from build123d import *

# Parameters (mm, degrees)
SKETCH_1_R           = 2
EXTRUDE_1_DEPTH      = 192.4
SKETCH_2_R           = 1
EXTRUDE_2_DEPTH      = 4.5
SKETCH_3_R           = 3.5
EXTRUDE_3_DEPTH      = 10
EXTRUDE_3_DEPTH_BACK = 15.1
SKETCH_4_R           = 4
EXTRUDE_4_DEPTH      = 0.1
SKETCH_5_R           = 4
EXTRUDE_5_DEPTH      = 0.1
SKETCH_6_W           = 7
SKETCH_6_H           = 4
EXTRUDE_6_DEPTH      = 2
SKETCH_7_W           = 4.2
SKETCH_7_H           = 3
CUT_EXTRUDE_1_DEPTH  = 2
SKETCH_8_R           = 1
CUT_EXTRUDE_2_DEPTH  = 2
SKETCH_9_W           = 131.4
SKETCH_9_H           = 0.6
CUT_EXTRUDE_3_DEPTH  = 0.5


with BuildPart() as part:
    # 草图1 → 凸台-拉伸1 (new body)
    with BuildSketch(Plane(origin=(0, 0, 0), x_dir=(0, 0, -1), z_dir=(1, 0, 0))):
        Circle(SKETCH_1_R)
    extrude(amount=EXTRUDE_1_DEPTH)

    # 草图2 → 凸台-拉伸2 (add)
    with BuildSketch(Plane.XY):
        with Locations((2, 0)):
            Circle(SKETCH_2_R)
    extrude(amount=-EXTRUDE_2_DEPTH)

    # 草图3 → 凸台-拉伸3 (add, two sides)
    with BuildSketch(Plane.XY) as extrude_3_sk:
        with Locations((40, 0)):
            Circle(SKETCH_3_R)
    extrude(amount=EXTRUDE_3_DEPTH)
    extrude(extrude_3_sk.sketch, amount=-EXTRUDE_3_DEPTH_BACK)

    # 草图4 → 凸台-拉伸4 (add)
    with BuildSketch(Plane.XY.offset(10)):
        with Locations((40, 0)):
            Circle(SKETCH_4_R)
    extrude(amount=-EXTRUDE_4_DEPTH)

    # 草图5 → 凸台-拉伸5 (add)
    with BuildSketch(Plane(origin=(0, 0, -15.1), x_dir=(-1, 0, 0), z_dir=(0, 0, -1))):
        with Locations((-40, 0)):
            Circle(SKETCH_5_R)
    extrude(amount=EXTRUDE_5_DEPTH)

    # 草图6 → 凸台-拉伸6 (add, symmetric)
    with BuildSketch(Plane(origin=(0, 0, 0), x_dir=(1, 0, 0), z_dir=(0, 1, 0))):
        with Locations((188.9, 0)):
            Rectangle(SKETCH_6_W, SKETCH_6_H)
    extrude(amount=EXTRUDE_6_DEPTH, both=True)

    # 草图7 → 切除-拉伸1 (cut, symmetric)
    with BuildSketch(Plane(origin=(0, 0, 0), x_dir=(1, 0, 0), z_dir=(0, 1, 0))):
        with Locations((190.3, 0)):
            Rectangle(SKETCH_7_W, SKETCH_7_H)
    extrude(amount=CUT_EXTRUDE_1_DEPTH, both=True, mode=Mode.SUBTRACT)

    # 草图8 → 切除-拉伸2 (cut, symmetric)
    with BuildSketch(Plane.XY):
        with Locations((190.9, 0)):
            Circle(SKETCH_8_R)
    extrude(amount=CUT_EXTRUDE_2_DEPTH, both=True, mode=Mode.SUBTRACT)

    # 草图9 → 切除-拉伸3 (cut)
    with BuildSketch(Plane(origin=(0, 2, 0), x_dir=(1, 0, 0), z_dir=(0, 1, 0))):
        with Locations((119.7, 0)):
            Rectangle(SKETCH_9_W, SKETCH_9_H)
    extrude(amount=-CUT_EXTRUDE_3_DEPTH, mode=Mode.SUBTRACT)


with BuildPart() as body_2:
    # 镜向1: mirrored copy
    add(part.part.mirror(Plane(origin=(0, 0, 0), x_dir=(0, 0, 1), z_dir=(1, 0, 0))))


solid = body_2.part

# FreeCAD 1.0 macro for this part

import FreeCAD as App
import Part
import Sketcher

V = App.Vector
Q = App.Units.Quantity

doc = App.newDocument("Part")
body = doc.addObject("PartDesign::Body", "Body")

sketch1 = body.newObject("Sketcher::SketchObject", "Sketch")
sketch1.AttachmentSupport = (doc.getObject("YZ_Plane"), [""])
sketch1.MapMode = "FlatFace"
sketch1.addGeometry(Part.Circle(V(0, 0, 0), V(0, 0, 1), 2), False)
sketch1.addConstraint(Sketcher.Constraint("Coincident", 0, 3, -1, 1))
sketch1.addConstraint(Sketcher.Constraint("Diameter", 0, Q("4 mm")))
pad1 = body.newObject("PartDesign::Pad", "Pad")
pad1.Profile = sketch1
pad1.Length = 192.4

sketch2 = body.newObject("Sketcher::SketchObject", "Sketch001")
sketch2.AttachmentSupport = (doc.getObject("XY_Plane"), [""])
sketch2.MapMode = "FlatFace"
sketch2.addGeometry(Part.Circle(V(2, 0, 0), V(0, 0, 1), 1), False)
sketch2.addConstraint(Sketcher.Constraint("PointOnObject", 0, 3, -1))
sketch2.addConstraint(Sketcher.Constraint("Diameter", 0, Q("2 mm")))
sketch2.addConstraint(Sketcher.Constraint("DistanceX", -1, 1, 0, 3, Q("2 mm")))
pad2 = body.newObject("PartDesign::Pad", "Pad001")
pad2.Profile = sketch2
pad2.Length = 4.5
pad2.Reversed = True

sketch3 = body.newObject("Sketcher::SketchObject", "Sketch002")
sketch3.AttachmentSupport = (doc.getObject("XY_Plane"), [""])
sketch3.MapMode = "FlatFace"
sketch3.addGeometry(Part.Circle(V(40, 0, 0), V(0, 0, 1), 3.5), False)
sketch3.addConstraint(Sketcher.Constraint("PointOnObject", 0, 3, -1))
sketch3.addConstraint(Sketcher.Constraint("Diameter", 0, Q("7 mm")))
sketch3.addConstraint(Sketcher.Constraint("DistanceX", -1, 1, 0, 3, Q("40 mm")))
pad3 = body.newObject("PartDesign::Pad", "Pad002")
pad3.Profile = sketch3
pad3.Type = "TwoLengths"
pad3.Length = 10
pad3.Length2 = 15.1

sketch4 = body.newObject("Sketcher::SketchObject", "Sketch003")
sketch4.AttachmentSupport = (doc.getObject("XY_Plane"), [""])
sketch4.MapMode = "FlatFace"
sketch4.AttachmentOffset = App.Placement(V(0, 0, 10), App.Rotation())
sketch4.addGeometry(Part.Circle(V(40, 0, 0), V(0, 0, 1), 4), False)
sketch4.addConstraint(Sketcher.Constraint("PointOnObject", 0, 3, -1))
sketch4.addConstraint(Sketcher.Constraint("Diameter", 0, Q("8 mm")))
sketch4.addConstraint(Sketcher.Constraint("DistanceX", -1, 1, 0, 3, Q("40 mm")))
pad4 = body.newObject("PartDesign::Pad", "Pad003")
pad4.Profile = sketch4
pad4.Length = 0.1
pad4.Reversed = True

sketch5 = body.newObject("Sketcher::SketchObject", "Sketch004")
sketch5.AttachmentSupport = (doc.getObject("XY_Plane"), [""])
sketch5.MapMode = "FlatFace"
sketch5.AttachmentOffset = App.Placement(V(0, 0, -15.1), App.Rotation())
sketch5.addGeometry(Part.Circle(V(40, 0, 0), V(0, 0, 1), 4), False)
sketch5.addConstraint(Sketcher.Constraint("PointOnObject", 0, 3, -1))
sketch5.addConstraint(Sketcher.Constraint("Diameter", 0, Q("8 mm")))
sketch5.addConstraint(Sketcher.Constraint("DistanceX", -1, 1, 0, 3, Q("40 mm")))
pad5 = body.newObject("PartDesign::Pad", "Pad004")
pad5.Profile = sketch5
pad5.Length = 0.1
pad5.Reversed = True

sketch6 = body.newObject("Sketcher::SketchObject", "Sketch005")
sketch6.AttachmentSupport = (doc.getObject("XZ_Plane"), [""])
sketch6.MapMode = "FlatFace"
sketch6.addGeometry(Part.LineSegment(V(185.4, -2, 0), V(185.4, 2, 0)), False)
sketch6.addGeometry(Part.LineSegment(V(185.4, 2, 0), V(192.4, 2, 0)), False)
sketch6.addGeometry(Part.LineSegment(V(192.4, 2, 0), V(192.4, -2, 0)), False)
sketch6.addGeometry(Part.LineSegment(V(192.4, -2, 0), V(185.4, -2, 0)), False)
sketch6.addConstraint(Sketcher.Constraint("Coincident", 0, 2, 1, 1))
sketch6.addConstraint(Sketcher.Constraint("Coincident", 1, 2, 2, 1))
sketch6.addConstraint(Sketcher.Constraint("Coincident", 2, 2, 3, 1))
sketch6.addConstraint(Sketcher.Constraint("Coincident", 3, 2, 0, 1))
sketch6.addConstraint(Sketcher.Constraint("Vertical", 0))
sketch6.addConstraint(Sketcher.Constraint("Horizontal", 1))
sketch6.addConstraint(Sketcher.Constraint("Vertical", 2))
sketch6.addConstraint(Sketcher.Constraint("Horizontal", 3))
sketch6.addConstraint(Sketcher.Constraint("DistanceX", 1, 1, 1, 2, Q("7 mm")))
sketch6.addConstraint(Sketcher.Constraint("DistanceY", 0, 1, 0, 2, Q("4 mm")))
sketch6.addConstraint(Sketcher.Constraint("DistanceY", -1, 1, 0, 2, Q("2 mm")))
sketch6.addConstraint(Sketcher.Constraint("DistanceX", -1, 1, 0, 2, Q("185.4 mm")))
pad6 = body.newObject("PartDesign::Pad", "Pad005")
pad6.Profile = sketch6
pad6.Length = 4
pad6.Midplane = True

sketch7 = body.newObject("Sketcher::SketchObject", "Sketch006")
sketch7.AttachmentSupport = (doc.getObject("XZ_Plane"), [""])
sketch7.MapMode = "FlatFace"
sketch7.addGeometry(Part.LineSegment(V(188.2, -1.5, 0), V(188.2, 1.5, 0)), False)
sketch7.addGeometry(Part.LineSegment(V(188.2, 1.5, 0), V(192.4, 1.5, 0)), False)
sketch7.addGeometry(Part.LineSegment(V(192.4, 1.5, 0), V(192.4, -1.5, 0)), False)
sketch7.addGeometry(Part.LineSegment(V(192.4, -1.5, 0), V(188.2, -1.5, 0)), False)
sketch7.addConstraint(Sketcher.Constraint("Coincident", 0, 2, 1, 1))
sketch7.addConstraint(Sketcher.Constraint("Coincident", 1, 2, 2, 1))
sketch7.addConstraint(Sketcher.Constraint("Coincident", 2, 2, 3, 1))
sketch7.addConstraint(Sketcher.Constraint("Coincident", 3, 2, 0, 1))
sketch7.addConstraint(Sketcher.Constraint("Vertical", 0))
sketch7.addConstraint(Sketcher.Constraint("Horizontal", 1))
sketch7.addConstraint(Sketcher.Constraint("Vertical", 2))
sketch7.addConstraint(Sketcher.Constraint("Horizontal", 3))
sketch7.addConstraint(Sketcher.Constraint("DistanceY", 0, 1, 0, 2, Q("3 mm")))
sketch7.addConstraint(Sketcher.Constraint("DistanceX", 1, 1, 1, 2, Q("4.2 mm")))
sketch7.addConstraint(Sketcher.Constraint("DistanceX", -1, 1, 0, 2, Q("188.2 mm")))
sketch7.addConstraint(Sketcher.Constraint("DistanceY", -1, 1, 0, 2, Q("1.5 mm")))
pocket1 = body.newObject("PartDesign::Pocket", "Pocket")
pocket1.Profile = sketch7
pocket1.Length = 4
pocket1.Midplane = True

sketch8 = body.newObject("Sketcher::SketchObject", "Sketch007")
sketch8.AttachmentSupport = (doc.getObject("XY_Plane"), [""])
sketch8.MapMode = "FlatFace"
sketch8.addGeometry(Part.Circle(V(190.9, 0, 0), V(0, 0, 1), 1), False)
sketch8.addConstraint(Sketcher.Constraint("PointOnObject", 0, 3, -1))
sketch8.addConstraint(Sketcher.Constraint("Diameter", 0, Q("2 mm")))
sketch8.addConstraint(Sketcher.Constraint("DistanceX", -1, 1, 0, 3, Q("190.9 mm")))
pocket2 = body.newObject("PartDesign::Pocket", "Pocket001")
pocket2.Profile = sketch8
pocket2.Length = 4
pocket2.Midplane = True

sketch9 = body.newObject("Sketcher::SketchObject", "Sketch008")
sketch9.AttachmentSupport = (doc.getObject("XZ_Plane"), [""])
sketch9.MapMode = "FlatFace"
sketch9.AttachmentOffset = App.Placement(V(0, 0, -2), App.Rotation())
sketch9.addGeometry(Part.LineSegment(V(54, -0.3, 0), V(54, 0.3, 0)), False)
sketch9.addGeometry(Part.LineSegment(V(54, 0.3, 0), V(185.4, 0.3, 0)), False)
sketch9.addGeometry(Part.LineSegment(V(185.4, 0.3, 0), V(185.4, -0.3, 0)), False)
sketch9.addGeometry(Part.LineSegment(V(185.4, -0.3, 0), V(54, -0.3, 0)), False)
sketch9.addConstraint(Sketcher.Constraint("Coincident", 0, 2, 1, 1))
sketch9.addConstraint(Sketcher.Constraint("Coincident", 1, 2, 2, 1))
sketch9.addConstraint(Sketcher.Constraint("Coincident", 2, 2, 3, 1))
sketch9.addConstraint(Sketcher.Constraint("Coincident", 3, 2, 0, 1))
sketch9.addConstraint(Sketcher.Constraint("Vertical", 0))
sketch9.addConstraint(Sketcher.Constraint("Horizontal", 1))
sketch9.addConstraint(Sketcher.Constraint("Vertical", 2))
sketch9.addConstraint(Sketcher.Constraint("Horizontal", 3))
sketch9.addConstraint(Sketcher.Constraint("DistanceX", 1, 1, 1, 2, Q("131.4 mm")))
sketch9.addConstraint(Sketcher.Constraint("DistanceY", 0, 1, 0, 2, Q("0.6 mm")))
sketch9.addConstraint(Sketcher.Constraint("DistanceX", -1, 1, 0, 2, Q("54 mm")))
sketch9.addConstraint(Sketcher.Constraint("DistanceY", -1, 1, 0, 2, Q("0.3 mm")))
pocket3 = body.newObject("PartDesign::Pocket", "Pocket002")
pocket3.Profile = sketch9
pocket3.Length = 0.5
pocket3.Reversed = True
body2 = doc.addObject("PartDesign::Body", "Body001")
doc.recompute()

mirroring = doc.addObject("Part::Mirroring", "Mirroring")
mirroring.Source = body
mirroring.Base = V(0, 0, 0)
mirroring.Normal = V(1, 0, 0)
body2.BaseFeature = mirroring
doc.recompute()
body.Visibility = False
mirroring.Visibility = False

doc.recompute()
